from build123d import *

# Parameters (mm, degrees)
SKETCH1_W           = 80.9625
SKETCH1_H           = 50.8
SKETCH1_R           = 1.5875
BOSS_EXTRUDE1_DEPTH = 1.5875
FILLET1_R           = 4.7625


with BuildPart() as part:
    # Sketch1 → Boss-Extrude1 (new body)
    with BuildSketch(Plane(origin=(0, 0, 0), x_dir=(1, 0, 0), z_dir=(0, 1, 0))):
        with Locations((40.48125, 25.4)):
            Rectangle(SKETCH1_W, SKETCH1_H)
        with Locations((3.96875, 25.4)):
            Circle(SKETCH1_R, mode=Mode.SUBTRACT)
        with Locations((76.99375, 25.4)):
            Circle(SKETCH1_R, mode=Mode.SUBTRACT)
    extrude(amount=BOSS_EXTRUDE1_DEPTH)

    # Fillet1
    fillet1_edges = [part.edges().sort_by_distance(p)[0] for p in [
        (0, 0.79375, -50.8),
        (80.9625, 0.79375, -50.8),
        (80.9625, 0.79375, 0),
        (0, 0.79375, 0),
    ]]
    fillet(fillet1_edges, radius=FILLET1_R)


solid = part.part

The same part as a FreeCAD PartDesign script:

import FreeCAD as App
import Part
import Sketcher

V = App.Vector
Q = App.Units.Quantity


def edges_at(feature, points):
    """Names of the edges that pass closest to the given points."""
    edges = feature.Shape.Edges
    near = lambda p: min(range(len(edges)), key=lambda i: edges[i].distToShape(Part.Vertex(*p))[0])
    return sorted({f"Edge{near(p) + 1}" for p in points})

doc = App.newDocument("Part")
body = doc.addObject("PartDesign::Body", "Body")

sketch1 = body.newObject("Sketcher::SketchObject", "Sketch")
sketch1.AttachmentSupport = (doc.getObject("XZ_Plane"), [""])
sketch1.MapMode = "FlatFace"
sketch1.addGeometry(Part.LineSegment(V(0, -50.8, 0), V(0, 0, 0)), False)
sketch1.addGeometry(Part.LineSegment(V(0, 0, 0), V(81, 0, 0)), False)
sketch1.addGeometry(Part.LineSegment(V(81, 0, 0), V(81, -50.8, 0)), False)
sketch1.addGeometry(Part.LineSegment(V(81, -50.8, 0), V(0, -50.8, 0)), False)
sketch1.addGeometry(Part.Circle(V(4, -25.4, 0), V(0, 0, 1), 1.6), False)
sketch1.addGeometry(Part.Circle(V(77, -25.4, 0), V(0, 0, 1), 1.6), False)
sketch1.addConstraint(Sketcher.Constraint("Coincident", 0, 2, 1, 1))
sketch1.addConstraint(Sketcher.Constraint("Coincident", 1, 2, 2, 1))
sketch1.addConstraint(Sketcher.Constraint("Coincident", 2, 2, 3, 1))
sketch1.addConstraint(Sketcher.Constraint("Coincident", 3, 2, 0, 1))
sketch1.addConstraint(Sketcher.Constraint("Vertical", 0))
sketch1.addConstraint(Sketcher.Constraint("Horizontal", 1))
sketch1.addConstraint(Sketcher.Constraint("Vertical", 2))
sketch1.addConstraint(Sketcher.Constraint("Horizontal", 3))
sketch1.addConstraint(Sketcher.Constraint("Coincident", 0, 2, -1, 1))
sketch1.addConstraint(Sketcher.Constraint("Equal", 4, 5))
sketch1.addConstraint(Sketcher.Constraint("Horizontal", 4, 3, 5, 3))
sketch1.addConstraint(Sketcher.Constraint("DistanceY", 0, 1, 0, 2, Q("2 in")))
sketch1.addConstraint(Sketcher.Constraint("Diameter", 4, Q("0.125 in")))
sketch1.addConstraint(Sketcher.Constraint("DistanceY", 4, 3, -1, 1, Q("1 in")))
sketch1.addConstraint(Sketcher.Constraint("DistanceX", 1, 1, 1, 2, Q("3.1875 in")))
sketch1.addConstraint(Sketcher.Constraint("DistanceX", -1, 1, 4, 3, Q("0.15625 in")))
sketch1.addConstraint(Sketcher.Constraint("DistanceX", -1, 1, 5, 3, Q("3.03125 in")))
pad1 = body.newObject("PartDesign::Pad", "Pad")
pad1.Profile = sketch1
pad1.Length = Q("0.0625 in")
pad1.Reversed = True
doc.recompute()

fillet = body.newObject("PartDesign::Fillet", "Fillet")
fillet.Base = (pad1, edges_at(pad1, [
    (0, 0.794, -50.8),
    (80.963, 0.794, -50.8),
    (80.963, 0.794, 0),
    (0, 0.794, 0),
]))
fillet.Radius = Q("0.1875 in")

doc.recompute()
